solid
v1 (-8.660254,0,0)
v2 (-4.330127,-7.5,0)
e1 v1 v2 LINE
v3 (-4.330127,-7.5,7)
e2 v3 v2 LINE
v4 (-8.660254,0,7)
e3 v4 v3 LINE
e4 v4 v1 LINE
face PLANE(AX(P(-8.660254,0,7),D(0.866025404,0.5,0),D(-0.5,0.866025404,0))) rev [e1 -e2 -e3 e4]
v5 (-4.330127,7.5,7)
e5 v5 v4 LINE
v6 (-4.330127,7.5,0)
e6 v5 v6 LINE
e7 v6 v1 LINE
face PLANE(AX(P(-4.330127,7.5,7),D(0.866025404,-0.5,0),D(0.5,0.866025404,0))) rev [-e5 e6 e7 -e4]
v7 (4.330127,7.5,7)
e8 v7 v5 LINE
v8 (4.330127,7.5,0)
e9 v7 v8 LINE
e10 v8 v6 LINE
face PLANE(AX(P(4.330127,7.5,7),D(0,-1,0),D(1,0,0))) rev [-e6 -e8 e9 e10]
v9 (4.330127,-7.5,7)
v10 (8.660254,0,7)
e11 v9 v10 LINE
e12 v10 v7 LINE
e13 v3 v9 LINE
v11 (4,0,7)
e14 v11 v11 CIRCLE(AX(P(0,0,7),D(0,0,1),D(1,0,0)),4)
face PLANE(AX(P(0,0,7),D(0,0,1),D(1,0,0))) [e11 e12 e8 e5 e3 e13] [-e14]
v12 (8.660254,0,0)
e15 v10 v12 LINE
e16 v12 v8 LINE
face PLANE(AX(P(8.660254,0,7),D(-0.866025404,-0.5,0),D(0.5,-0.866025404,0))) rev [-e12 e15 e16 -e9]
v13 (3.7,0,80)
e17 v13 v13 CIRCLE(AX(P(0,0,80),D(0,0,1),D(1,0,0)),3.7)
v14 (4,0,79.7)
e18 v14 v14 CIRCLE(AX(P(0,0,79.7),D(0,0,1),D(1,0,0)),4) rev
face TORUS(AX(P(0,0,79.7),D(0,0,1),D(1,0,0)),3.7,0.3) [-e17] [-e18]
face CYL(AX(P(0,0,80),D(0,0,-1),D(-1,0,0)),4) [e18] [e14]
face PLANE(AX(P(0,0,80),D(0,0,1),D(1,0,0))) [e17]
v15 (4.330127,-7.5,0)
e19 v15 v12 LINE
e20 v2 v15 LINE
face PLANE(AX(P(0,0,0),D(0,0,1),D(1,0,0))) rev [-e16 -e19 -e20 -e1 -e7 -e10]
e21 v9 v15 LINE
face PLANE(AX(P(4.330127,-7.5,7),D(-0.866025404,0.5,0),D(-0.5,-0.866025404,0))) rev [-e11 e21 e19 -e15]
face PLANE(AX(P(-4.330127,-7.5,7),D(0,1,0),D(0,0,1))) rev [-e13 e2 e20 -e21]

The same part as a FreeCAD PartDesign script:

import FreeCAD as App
import Part
import Sketcher
Q = App.Units.Quantity


def edges_at(feature, points):
    """Names of the edges that pass closest to the given points."""
    edges = feature.Shape.Edges
    near = lambda p: min(range(len(edges)), key=lambda i: edges[i].distToShape(Part.Vertex(*p))[0])
    return sorted({f"Edge{near(p) + 1}" for p in points})


def add_polygon(sketch, points):
    """Adds a closed chain of lines whose ends are joined by coincident constraints."""
    first, n = sketch.GeometryCount, len(points)
    for a, b in zip(points, points[1:] + points[:1]):
        sketch.addGeometry(Part.LineSegment(App.Vector(*a, 0), App.Vector(*b, 0)), False)
    for i in range(n):
        sketch.addConstraint(Sketcher.Constraint("Coincident", first + i, 2, first + (i + 1) % n, 1))

doc = App.newDocument("Part")
params = doc.addObject("Spreadsheet::Sheet", "Params")
for row, (alias, value) in enumerate([
    ("sketch1_diameter", "8 mm"),
    ("pad1_length", "80 mm"),
    ("sketch2_diameter", "8 mm"),
    ("pad2_length", "7 mm"),
    ("fillet_radius", "0.3 mm"),
], start=1):
    params.set(f"A{row}", alias)
    params.set(f"B{row}", "=" + value)
    params.setAlias(f"B{row}", alias)

body = doc.addObject("PartDesign::Body", "Body")

sketch1 = body.newObject("Sketcher::SketchObject", "Sketch")
sketch1.AttachmentSupport = (doc.getObject("XY_Plane"), [""])
sketch1.MapMode = "FlatFace"
sketch1.addGeometry(Part.Circle(App.Vector(0, 0, 0), App.Vector(0, 0, 1), 4), False)
sketch1.addConstraint([
    Sketcher.Constraint("Coincident", 0, 3, -1, 1),
    Sketcher.Constraint("Diameter", 0, 8.0),
])
sketch1.setExpression("Constraints[1]", "Params.sketch1_diameter")
pad1 = body.newObject("PartDesign::Pad", "Pad")
pad1.Profile = sketch1
pad1.setExpression("Length", "Params.pad1_length")

sketch2 = body.newObject("Sketcher::SketchObject", "Sketch001")
sketch2.AttachmentSupport = (doc.getObject("XY_Plane"), [""])
sketch2.MapMode = "FlatFace"
add_polygon(sketch2, [(-4.3, -7.5), (4.3, -7.5), (8.7, 0), (4.3, 7.5), (-4.3, 7.5), (-8.7, 0)])
sketch2.addGeometry(Part.Circle(App.Vector(0, 0, 0), App.Vector(0, 0, 1), 4), False)
sketch2.addConstraint([
    Sketcher.Constraint("Horizontal", 0),
    Sketcher.Constraint("Horizontal", 3),
    Sketcher.Constraint("Coincident", 6, 3, -1, 1),
    Sketcher.Constraint("Symmetric", 0, 2, 3, 2, -1, 1),
    Sketcher.Constraint("Symmetric", 1, 2, 4, 2, -1, 1),
    Sketcher.Constraint("PointOnObject", 1, 2, -1),
    Sketcher.Constraint("Parallel", 2, 5),
    Sketcher.Constraint("Vertical", 0, 2, 2, 2),
    Sketcher.Constraint("Diameter", 6, 8.0),
    Sketcher.Constraint("Angle", 1, Q("60 deg")),
    Sketcher.Constraint("DistanceY", 0, 2, 2, 2, 15.0),
    Sketcher.Constraint("DistanceX", 0, 1, 0, 2, 8.660254),
])
sketch2.setExpression("Constraints[14]", "Params.sketch2_diameter")
pad2 = body.newObject("PartDesign::Pad", "Pad001")
pad2.Profile = sketch2
pad2.setExpression("Length", "Params.pad2_length")
doc.recompute()

fillet = body.newObject("PartDesign::Fillet", "Fillet")
fillet.Base = (pad2, edges_at(pad2, [(-4, 0, 80)]))
fillet.setExpression("Radius", "Params.fillet_radius")

doc.recompute()
